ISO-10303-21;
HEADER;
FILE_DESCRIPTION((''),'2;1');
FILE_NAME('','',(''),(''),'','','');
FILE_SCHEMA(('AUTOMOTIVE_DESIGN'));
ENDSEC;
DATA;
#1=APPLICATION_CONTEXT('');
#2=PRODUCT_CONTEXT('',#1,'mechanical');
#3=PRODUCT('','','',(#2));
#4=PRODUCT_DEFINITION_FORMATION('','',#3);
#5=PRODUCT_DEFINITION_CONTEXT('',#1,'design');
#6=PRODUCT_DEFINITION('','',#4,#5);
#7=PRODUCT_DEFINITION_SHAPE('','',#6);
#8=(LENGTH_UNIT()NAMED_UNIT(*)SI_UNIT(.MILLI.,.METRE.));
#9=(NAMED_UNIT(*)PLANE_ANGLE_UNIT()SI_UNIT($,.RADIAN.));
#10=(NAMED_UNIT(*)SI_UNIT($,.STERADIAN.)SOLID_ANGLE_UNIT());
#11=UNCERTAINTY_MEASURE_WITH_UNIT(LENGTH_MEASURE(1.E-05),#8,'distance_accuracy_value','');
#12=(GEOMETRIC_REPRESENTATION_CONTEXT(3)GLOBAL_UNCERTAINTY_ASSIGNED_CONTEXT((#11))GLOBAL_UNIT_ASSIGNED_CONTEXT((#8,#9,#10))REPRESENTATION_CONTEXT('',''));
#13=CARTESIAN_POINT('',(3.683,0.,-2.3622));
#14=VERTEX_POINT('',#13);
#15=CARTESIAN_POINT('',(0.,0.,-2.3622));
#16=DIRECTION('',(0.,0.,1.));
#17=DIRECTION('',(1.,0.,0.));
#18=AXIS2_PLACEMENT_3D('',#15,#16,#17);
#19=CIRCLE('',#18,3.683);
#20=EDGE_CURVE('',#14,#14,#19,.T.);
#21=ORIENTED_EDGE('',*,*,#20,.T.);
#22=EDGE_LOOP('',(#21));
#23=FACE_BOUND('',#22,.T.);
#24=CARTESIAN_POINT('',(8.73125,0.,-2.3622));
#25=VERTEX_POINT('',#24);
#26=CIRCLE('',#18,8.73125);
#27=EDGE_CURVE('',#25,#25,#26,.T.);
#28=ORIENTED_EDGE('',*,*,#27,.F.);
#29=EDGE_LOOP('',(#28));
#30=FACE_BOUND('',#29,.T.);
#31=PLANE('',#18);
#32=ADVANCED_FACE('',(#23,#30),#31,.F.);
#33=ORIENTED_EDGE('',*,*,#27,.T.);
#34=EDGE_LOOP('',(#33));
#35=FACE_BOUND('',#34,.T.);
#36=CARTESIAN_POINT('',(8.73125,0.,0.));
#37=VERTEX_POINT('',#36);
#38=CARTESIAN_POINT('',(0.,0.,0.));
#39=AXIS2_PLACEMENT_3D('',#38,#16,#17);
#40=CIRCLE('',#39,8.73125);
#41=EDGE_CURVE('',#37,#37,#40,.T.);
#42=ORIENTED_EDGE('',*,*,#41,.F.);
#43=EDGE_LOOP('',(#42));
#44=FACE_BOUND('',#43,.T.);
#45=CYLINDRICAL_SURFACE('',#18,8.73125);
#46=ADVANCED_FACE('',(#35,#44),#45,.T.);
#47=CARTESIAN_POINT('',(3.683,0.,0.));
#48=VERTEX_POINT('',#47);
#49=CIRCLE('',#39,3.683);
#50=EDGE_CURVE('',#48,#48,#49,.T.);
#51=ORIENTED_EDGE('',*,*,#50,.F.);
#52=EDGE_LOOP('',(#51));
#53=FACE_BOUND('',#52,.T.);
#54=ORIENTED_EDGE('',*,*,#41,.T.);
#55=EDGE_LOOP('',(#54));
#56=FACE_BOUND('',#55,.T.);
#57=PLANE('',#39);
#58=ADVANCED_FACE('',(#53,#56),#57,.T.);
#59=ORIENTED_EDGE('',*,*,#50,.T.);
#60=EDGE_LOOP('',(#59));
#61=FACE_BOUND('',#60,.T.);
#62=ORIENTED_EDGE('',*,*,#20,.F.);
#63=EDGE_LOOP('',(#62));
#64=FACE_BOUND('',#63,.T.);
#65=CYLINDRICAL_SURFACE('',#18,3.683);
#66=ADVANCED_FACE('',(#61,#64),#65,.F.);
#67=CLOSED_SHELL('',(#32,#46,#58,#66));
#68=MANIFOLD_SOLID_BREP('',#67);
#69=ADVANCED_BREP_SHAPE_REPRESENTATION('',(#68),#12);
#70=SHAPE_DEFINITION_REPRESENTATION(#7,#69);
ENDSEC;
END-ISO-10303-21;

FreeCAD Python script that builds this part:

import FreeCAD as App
import Part
import Sketcher
from FreeCAD import Vector
Q = App.Units.Quantity

doc = App.newDocument("Part")
body = doc.addObject("PartDesign::Body", "Body")

# Sketch on XY plane
sketch1 = body.newObject("Sketcher::SketchObject", "Sketch")
sketch1.AttachmentSupport = (doc.getObject("XY_Plane"), [""])
sketch1.MapMode = "FlatFace"
sketch1.addGeometry([
    Part.Circle(Vector(0, 0, 0), Vector(0, 0, 1), 8.73125),
    Part.Circle(Vector(0, 0, 0), Vector(0, 0, 1), 3.683),
], False)
sketch1.addConstraint([
    Sketcher.Constraint("Coincident", 0, 3, -1, 1),
    Sketcher.Constraint("Coincident", 1, 3, -1, 1),
    Sketcher.Constraint("Diameter", 1, Q("0.29 in")),
    Sketcher.Constraint("Diameter", 0, Q("0.6875 in")),
])
pad1 = body.newObject("PartDesign::Pad", "Pad")
pad1.Profile = sketch1
pad1.Length = Q("0.093 in")
pad1.Reversed = True

doc.recompute()
